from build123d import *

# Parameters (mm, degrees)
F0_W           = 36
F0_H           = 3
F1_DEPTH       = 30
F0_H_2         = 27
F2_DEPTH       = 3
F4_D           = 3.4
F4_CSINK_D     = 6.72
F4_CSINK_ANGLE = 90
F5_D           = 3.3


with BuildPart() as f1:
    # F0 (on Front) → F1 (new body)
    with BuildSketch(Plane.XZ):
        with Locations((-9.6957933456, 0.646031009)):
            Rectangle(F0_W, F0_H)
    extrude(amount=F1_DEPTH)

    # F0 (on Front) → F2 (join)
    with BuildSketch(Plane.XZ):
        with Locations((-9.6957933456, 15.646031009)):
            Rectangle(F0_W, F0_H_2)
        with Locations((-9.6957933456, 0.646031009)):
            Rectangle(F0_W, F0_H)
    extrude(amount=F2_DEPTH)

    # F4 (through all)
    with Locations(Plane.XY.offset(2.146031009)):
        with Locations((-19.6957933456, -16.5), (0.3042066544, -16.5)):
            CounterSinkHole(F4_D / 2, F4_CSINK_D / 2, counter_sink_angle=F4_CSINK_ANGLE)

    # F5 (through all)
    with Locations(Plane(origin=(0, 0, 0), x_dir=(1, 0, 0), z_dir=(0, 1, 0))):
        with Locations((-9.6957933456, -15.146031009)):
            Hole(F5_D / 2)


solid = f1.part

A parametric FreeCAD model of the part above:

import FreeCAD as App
import Part
import Sketcher

V = App.Vector


def add_polygon(sketch, points):
    """Adds a closed chain of lines whose ends are joined by coincident constraints."""
    first, n = sketch.GeometryCount, len(points)
    for a, b in zip(points, points[1:] + points[:1]):
        sketch.addGeometry(Part.LineSegment(App.Vector(*a, 0), App.Vector(*b, 0)), False)
    for i in range(n):
        sketch.addConstraint(Sketcher.Constraint("Coincident", first + i, 2, first + (i + 1) % n, 1))

doc = App.newDocument("Part")
params = doc.addObject("Spreadsheet::Sheet", "Params")
for row, (alias, value) in enumerate([
    ("sketch1_width", "36 mm"),
    ("sketch1_height", "3 mm"),
    ("pad1_length", "30 mm"),
    ("sketch2_width", "36 mm"),
    ("sketch2_height", "30 mm"),
    ("pad2_length", "3 mm"),
    ("sketch3_diameter", "3.4 mm"),
    ("hole_diameter", "3.4 mm"),
    ("hole_csink_diameter", "6.72 mm"),
    ("sketch4_diameter", "3.3 mm"),
    ("hole2_diameter", "3.3 mm"),
], start=1):
    params.set(f"A{row}", alias)
    params.set(f"B{row}", "=" + value)
    params.setAlias(f"B{row}", alias)

body = doc.addObject("PartDesign::Body", "Body")

sketch1 = doc.addObject("Sketcher::SketchObject", "Sketch")
body.addObject(sketch1)
sketch1.AttachmentSupport = (doc.XZ_Plane, [""])
sketch1.MapMode = "FlatFace"
add_polygon(sketch1, [(-27.695793, 2.146031), (-27.695793, -0.853969), (8.304207, -0.853969), (8.304207, 2.146031)])
sketch1.addConstraint([
    Sketcher.Constraint("Vertical", 0),
    Sketcher.Constraint("Horizontal", 1),
    Sketcher.Constraint("Vertical", 2),
    Sketcher.Constraint("Horizontal", 3),
    Sketcher.Constraint("DistanceX", 1, 1, 1, 2, 36.0),
    Sketcher.Constraint("DistanceY", 0, 2, 0, 1, 3.0),
    Sketcher.Constraint("DistanceY", 0, 2, -1, 1, 0.853969),
    Sketcher.Constraint("DistanceX", 0, 2, -1, 1, 27.695793),
])
sketch1.setExpression("Constraints[8]", "Params.sketch1_width")
sketch1.setExpression("Constraints[9]", "Params.sketch1_height")
pad1 = doc.addObject("PartDesign::Pad", "Pad")
body.addObject(pad1)
pad1.Profile = sketch1
pad1.setExpression("Length", "Params.pad1_length")

sketch2 = doc.addObject("Sketcher::SketchObject", "Sketch001")
body.addObject(sketch2)
sketch2.AttachmentSupport = (doc.XZ_Plane, [""])
sketch2.MapMode = "FlatFace"
add_polygon(sketch2, [(-27.695793, 29.146031), (-27.695793, -0.853969), (8.304207, -0.853969), (8.304207, 29.146031)])
sketch2.addConstraint([
    Sketcher.Constraint("Vertical", 0),
    Sketcher.Constraint("Horizontal", 1),
    Sketcher.Constraint("Vertical", 2),
    Sketcher.Constraint("Horizontal", 3),
    Sketcher.Constraint("DistanceX", 1, 1, 1, 2, 36.0),
    Sketcher.Constraint("DistanceY", 0, 2, 0, 1, 30.0),
    Sketcher.Constraint("DistanceY", 0, 2, -1, 1, 0.853969),
    Sketcher.Constraint("DistanceX", 0, 2, -1, 1, 27.695793),
])
sketch2.setExpression("Constraints[8]", "Params.sketch2_width")
sketch2.setExpression("Constraints[9]", "Params.sketch2_height")
pad2 = doc.addObject("PartDesign::Pad", "Pad001")
body.addObject(pad2)
pad2.Profile = sketch2
pad2.setExpression("Length", "Params.pad2_length")

sketch3 = doc.addObject("Sketcher::SketchObject", "Sketch002")
body.addObject(sketch3)
sketch3.AttachmentSupport = (doc.XY_Plane, [""])
sketch3.MapMode = "FlatFace"
sketch3.AttachmentOffset = App.Placement(V(0, 0, 2.146031), App.Rotation())
sketch3.addGeometry([
    Part.Circle(V(-19.695793, -16.5, 0), V(0, 0, 1), 1.7),
    Part.Circle(V(0.304207, -16.5, 0), V(0, 0, 1), 1.7),
], False)
sketch3.addConstraint([
    Sketcher.Constraint("Equal", 0, 1),
    Sketcher.Constraint("Horizontal", 0, 3, 1, 3),
    Sketcher.Constraint("Diameter", 0, 3.4),
    Sketcher.Constraint("DistanceX", 0, 3, 1, 3, 20.0),
    Sketcher.Constraint("DistanceY", 0, 3, -1, 1, 16.5),
    Sketcher.Constraint("DistanceX", 0, 3, -1, 1, 19.695793),
])
sketch3.setExpression("Constraints[2]", "Params.sketch3_diameter")
doc.recompute()
hole = doc.addObject("PartDesign::Hole", "Hole")
body.addObject(hole)
hole.Profile = sketch3
hole.ThreadType = "None"
hole.setExpression("Diameter", "Params.hole_diameter")
hole.DepthType = "ThroughAll"
hole.HoleCutType = "Countersink"
hole.setExpression("HoleCutDiameter", "Params.hole_csink_diameter")
hole.HoleCutCountersinkAngle = 90

sketch4 = doc.addObject("Sketcher::SketchObject", "Sketch003")
body.addObject(sketch4)
sketch4.AttachmentSupport = (doc.XZ_Plane, [""])
sketch4.MapMode = "FlatFace"
sketch4.addGeometry(Part.Circle(V(-9.695793, 15.146031, 0), V(0, 0, 1), 1.65), False)
sketch4.addConstraint([
    Sketcher.Constraint("Diameter", 0, 3.3),
    Sketcher.Constraint("DistanceY", -1, 1, 0, 3, 15.146031),
    Sketcher.Constraint("DistanceX", 0, 3, -1, 1, 9.695793),
])
sketch4.setExpression("Constraints[0]", "Params.sketch4_diameter")
doc.recompute()
hole2 = doc.addObject("PartDesign::Hole", "Hole001")
body.addObject(hole2)
hole2.Profile = sketch4
hole2.ThreadType = "None"
hole2.setExpression("Diameter", "Params.hole2_diameter")
hole2.DepthType = "ThroughAll"
hole2.Reversed = True

doc.recompute()
